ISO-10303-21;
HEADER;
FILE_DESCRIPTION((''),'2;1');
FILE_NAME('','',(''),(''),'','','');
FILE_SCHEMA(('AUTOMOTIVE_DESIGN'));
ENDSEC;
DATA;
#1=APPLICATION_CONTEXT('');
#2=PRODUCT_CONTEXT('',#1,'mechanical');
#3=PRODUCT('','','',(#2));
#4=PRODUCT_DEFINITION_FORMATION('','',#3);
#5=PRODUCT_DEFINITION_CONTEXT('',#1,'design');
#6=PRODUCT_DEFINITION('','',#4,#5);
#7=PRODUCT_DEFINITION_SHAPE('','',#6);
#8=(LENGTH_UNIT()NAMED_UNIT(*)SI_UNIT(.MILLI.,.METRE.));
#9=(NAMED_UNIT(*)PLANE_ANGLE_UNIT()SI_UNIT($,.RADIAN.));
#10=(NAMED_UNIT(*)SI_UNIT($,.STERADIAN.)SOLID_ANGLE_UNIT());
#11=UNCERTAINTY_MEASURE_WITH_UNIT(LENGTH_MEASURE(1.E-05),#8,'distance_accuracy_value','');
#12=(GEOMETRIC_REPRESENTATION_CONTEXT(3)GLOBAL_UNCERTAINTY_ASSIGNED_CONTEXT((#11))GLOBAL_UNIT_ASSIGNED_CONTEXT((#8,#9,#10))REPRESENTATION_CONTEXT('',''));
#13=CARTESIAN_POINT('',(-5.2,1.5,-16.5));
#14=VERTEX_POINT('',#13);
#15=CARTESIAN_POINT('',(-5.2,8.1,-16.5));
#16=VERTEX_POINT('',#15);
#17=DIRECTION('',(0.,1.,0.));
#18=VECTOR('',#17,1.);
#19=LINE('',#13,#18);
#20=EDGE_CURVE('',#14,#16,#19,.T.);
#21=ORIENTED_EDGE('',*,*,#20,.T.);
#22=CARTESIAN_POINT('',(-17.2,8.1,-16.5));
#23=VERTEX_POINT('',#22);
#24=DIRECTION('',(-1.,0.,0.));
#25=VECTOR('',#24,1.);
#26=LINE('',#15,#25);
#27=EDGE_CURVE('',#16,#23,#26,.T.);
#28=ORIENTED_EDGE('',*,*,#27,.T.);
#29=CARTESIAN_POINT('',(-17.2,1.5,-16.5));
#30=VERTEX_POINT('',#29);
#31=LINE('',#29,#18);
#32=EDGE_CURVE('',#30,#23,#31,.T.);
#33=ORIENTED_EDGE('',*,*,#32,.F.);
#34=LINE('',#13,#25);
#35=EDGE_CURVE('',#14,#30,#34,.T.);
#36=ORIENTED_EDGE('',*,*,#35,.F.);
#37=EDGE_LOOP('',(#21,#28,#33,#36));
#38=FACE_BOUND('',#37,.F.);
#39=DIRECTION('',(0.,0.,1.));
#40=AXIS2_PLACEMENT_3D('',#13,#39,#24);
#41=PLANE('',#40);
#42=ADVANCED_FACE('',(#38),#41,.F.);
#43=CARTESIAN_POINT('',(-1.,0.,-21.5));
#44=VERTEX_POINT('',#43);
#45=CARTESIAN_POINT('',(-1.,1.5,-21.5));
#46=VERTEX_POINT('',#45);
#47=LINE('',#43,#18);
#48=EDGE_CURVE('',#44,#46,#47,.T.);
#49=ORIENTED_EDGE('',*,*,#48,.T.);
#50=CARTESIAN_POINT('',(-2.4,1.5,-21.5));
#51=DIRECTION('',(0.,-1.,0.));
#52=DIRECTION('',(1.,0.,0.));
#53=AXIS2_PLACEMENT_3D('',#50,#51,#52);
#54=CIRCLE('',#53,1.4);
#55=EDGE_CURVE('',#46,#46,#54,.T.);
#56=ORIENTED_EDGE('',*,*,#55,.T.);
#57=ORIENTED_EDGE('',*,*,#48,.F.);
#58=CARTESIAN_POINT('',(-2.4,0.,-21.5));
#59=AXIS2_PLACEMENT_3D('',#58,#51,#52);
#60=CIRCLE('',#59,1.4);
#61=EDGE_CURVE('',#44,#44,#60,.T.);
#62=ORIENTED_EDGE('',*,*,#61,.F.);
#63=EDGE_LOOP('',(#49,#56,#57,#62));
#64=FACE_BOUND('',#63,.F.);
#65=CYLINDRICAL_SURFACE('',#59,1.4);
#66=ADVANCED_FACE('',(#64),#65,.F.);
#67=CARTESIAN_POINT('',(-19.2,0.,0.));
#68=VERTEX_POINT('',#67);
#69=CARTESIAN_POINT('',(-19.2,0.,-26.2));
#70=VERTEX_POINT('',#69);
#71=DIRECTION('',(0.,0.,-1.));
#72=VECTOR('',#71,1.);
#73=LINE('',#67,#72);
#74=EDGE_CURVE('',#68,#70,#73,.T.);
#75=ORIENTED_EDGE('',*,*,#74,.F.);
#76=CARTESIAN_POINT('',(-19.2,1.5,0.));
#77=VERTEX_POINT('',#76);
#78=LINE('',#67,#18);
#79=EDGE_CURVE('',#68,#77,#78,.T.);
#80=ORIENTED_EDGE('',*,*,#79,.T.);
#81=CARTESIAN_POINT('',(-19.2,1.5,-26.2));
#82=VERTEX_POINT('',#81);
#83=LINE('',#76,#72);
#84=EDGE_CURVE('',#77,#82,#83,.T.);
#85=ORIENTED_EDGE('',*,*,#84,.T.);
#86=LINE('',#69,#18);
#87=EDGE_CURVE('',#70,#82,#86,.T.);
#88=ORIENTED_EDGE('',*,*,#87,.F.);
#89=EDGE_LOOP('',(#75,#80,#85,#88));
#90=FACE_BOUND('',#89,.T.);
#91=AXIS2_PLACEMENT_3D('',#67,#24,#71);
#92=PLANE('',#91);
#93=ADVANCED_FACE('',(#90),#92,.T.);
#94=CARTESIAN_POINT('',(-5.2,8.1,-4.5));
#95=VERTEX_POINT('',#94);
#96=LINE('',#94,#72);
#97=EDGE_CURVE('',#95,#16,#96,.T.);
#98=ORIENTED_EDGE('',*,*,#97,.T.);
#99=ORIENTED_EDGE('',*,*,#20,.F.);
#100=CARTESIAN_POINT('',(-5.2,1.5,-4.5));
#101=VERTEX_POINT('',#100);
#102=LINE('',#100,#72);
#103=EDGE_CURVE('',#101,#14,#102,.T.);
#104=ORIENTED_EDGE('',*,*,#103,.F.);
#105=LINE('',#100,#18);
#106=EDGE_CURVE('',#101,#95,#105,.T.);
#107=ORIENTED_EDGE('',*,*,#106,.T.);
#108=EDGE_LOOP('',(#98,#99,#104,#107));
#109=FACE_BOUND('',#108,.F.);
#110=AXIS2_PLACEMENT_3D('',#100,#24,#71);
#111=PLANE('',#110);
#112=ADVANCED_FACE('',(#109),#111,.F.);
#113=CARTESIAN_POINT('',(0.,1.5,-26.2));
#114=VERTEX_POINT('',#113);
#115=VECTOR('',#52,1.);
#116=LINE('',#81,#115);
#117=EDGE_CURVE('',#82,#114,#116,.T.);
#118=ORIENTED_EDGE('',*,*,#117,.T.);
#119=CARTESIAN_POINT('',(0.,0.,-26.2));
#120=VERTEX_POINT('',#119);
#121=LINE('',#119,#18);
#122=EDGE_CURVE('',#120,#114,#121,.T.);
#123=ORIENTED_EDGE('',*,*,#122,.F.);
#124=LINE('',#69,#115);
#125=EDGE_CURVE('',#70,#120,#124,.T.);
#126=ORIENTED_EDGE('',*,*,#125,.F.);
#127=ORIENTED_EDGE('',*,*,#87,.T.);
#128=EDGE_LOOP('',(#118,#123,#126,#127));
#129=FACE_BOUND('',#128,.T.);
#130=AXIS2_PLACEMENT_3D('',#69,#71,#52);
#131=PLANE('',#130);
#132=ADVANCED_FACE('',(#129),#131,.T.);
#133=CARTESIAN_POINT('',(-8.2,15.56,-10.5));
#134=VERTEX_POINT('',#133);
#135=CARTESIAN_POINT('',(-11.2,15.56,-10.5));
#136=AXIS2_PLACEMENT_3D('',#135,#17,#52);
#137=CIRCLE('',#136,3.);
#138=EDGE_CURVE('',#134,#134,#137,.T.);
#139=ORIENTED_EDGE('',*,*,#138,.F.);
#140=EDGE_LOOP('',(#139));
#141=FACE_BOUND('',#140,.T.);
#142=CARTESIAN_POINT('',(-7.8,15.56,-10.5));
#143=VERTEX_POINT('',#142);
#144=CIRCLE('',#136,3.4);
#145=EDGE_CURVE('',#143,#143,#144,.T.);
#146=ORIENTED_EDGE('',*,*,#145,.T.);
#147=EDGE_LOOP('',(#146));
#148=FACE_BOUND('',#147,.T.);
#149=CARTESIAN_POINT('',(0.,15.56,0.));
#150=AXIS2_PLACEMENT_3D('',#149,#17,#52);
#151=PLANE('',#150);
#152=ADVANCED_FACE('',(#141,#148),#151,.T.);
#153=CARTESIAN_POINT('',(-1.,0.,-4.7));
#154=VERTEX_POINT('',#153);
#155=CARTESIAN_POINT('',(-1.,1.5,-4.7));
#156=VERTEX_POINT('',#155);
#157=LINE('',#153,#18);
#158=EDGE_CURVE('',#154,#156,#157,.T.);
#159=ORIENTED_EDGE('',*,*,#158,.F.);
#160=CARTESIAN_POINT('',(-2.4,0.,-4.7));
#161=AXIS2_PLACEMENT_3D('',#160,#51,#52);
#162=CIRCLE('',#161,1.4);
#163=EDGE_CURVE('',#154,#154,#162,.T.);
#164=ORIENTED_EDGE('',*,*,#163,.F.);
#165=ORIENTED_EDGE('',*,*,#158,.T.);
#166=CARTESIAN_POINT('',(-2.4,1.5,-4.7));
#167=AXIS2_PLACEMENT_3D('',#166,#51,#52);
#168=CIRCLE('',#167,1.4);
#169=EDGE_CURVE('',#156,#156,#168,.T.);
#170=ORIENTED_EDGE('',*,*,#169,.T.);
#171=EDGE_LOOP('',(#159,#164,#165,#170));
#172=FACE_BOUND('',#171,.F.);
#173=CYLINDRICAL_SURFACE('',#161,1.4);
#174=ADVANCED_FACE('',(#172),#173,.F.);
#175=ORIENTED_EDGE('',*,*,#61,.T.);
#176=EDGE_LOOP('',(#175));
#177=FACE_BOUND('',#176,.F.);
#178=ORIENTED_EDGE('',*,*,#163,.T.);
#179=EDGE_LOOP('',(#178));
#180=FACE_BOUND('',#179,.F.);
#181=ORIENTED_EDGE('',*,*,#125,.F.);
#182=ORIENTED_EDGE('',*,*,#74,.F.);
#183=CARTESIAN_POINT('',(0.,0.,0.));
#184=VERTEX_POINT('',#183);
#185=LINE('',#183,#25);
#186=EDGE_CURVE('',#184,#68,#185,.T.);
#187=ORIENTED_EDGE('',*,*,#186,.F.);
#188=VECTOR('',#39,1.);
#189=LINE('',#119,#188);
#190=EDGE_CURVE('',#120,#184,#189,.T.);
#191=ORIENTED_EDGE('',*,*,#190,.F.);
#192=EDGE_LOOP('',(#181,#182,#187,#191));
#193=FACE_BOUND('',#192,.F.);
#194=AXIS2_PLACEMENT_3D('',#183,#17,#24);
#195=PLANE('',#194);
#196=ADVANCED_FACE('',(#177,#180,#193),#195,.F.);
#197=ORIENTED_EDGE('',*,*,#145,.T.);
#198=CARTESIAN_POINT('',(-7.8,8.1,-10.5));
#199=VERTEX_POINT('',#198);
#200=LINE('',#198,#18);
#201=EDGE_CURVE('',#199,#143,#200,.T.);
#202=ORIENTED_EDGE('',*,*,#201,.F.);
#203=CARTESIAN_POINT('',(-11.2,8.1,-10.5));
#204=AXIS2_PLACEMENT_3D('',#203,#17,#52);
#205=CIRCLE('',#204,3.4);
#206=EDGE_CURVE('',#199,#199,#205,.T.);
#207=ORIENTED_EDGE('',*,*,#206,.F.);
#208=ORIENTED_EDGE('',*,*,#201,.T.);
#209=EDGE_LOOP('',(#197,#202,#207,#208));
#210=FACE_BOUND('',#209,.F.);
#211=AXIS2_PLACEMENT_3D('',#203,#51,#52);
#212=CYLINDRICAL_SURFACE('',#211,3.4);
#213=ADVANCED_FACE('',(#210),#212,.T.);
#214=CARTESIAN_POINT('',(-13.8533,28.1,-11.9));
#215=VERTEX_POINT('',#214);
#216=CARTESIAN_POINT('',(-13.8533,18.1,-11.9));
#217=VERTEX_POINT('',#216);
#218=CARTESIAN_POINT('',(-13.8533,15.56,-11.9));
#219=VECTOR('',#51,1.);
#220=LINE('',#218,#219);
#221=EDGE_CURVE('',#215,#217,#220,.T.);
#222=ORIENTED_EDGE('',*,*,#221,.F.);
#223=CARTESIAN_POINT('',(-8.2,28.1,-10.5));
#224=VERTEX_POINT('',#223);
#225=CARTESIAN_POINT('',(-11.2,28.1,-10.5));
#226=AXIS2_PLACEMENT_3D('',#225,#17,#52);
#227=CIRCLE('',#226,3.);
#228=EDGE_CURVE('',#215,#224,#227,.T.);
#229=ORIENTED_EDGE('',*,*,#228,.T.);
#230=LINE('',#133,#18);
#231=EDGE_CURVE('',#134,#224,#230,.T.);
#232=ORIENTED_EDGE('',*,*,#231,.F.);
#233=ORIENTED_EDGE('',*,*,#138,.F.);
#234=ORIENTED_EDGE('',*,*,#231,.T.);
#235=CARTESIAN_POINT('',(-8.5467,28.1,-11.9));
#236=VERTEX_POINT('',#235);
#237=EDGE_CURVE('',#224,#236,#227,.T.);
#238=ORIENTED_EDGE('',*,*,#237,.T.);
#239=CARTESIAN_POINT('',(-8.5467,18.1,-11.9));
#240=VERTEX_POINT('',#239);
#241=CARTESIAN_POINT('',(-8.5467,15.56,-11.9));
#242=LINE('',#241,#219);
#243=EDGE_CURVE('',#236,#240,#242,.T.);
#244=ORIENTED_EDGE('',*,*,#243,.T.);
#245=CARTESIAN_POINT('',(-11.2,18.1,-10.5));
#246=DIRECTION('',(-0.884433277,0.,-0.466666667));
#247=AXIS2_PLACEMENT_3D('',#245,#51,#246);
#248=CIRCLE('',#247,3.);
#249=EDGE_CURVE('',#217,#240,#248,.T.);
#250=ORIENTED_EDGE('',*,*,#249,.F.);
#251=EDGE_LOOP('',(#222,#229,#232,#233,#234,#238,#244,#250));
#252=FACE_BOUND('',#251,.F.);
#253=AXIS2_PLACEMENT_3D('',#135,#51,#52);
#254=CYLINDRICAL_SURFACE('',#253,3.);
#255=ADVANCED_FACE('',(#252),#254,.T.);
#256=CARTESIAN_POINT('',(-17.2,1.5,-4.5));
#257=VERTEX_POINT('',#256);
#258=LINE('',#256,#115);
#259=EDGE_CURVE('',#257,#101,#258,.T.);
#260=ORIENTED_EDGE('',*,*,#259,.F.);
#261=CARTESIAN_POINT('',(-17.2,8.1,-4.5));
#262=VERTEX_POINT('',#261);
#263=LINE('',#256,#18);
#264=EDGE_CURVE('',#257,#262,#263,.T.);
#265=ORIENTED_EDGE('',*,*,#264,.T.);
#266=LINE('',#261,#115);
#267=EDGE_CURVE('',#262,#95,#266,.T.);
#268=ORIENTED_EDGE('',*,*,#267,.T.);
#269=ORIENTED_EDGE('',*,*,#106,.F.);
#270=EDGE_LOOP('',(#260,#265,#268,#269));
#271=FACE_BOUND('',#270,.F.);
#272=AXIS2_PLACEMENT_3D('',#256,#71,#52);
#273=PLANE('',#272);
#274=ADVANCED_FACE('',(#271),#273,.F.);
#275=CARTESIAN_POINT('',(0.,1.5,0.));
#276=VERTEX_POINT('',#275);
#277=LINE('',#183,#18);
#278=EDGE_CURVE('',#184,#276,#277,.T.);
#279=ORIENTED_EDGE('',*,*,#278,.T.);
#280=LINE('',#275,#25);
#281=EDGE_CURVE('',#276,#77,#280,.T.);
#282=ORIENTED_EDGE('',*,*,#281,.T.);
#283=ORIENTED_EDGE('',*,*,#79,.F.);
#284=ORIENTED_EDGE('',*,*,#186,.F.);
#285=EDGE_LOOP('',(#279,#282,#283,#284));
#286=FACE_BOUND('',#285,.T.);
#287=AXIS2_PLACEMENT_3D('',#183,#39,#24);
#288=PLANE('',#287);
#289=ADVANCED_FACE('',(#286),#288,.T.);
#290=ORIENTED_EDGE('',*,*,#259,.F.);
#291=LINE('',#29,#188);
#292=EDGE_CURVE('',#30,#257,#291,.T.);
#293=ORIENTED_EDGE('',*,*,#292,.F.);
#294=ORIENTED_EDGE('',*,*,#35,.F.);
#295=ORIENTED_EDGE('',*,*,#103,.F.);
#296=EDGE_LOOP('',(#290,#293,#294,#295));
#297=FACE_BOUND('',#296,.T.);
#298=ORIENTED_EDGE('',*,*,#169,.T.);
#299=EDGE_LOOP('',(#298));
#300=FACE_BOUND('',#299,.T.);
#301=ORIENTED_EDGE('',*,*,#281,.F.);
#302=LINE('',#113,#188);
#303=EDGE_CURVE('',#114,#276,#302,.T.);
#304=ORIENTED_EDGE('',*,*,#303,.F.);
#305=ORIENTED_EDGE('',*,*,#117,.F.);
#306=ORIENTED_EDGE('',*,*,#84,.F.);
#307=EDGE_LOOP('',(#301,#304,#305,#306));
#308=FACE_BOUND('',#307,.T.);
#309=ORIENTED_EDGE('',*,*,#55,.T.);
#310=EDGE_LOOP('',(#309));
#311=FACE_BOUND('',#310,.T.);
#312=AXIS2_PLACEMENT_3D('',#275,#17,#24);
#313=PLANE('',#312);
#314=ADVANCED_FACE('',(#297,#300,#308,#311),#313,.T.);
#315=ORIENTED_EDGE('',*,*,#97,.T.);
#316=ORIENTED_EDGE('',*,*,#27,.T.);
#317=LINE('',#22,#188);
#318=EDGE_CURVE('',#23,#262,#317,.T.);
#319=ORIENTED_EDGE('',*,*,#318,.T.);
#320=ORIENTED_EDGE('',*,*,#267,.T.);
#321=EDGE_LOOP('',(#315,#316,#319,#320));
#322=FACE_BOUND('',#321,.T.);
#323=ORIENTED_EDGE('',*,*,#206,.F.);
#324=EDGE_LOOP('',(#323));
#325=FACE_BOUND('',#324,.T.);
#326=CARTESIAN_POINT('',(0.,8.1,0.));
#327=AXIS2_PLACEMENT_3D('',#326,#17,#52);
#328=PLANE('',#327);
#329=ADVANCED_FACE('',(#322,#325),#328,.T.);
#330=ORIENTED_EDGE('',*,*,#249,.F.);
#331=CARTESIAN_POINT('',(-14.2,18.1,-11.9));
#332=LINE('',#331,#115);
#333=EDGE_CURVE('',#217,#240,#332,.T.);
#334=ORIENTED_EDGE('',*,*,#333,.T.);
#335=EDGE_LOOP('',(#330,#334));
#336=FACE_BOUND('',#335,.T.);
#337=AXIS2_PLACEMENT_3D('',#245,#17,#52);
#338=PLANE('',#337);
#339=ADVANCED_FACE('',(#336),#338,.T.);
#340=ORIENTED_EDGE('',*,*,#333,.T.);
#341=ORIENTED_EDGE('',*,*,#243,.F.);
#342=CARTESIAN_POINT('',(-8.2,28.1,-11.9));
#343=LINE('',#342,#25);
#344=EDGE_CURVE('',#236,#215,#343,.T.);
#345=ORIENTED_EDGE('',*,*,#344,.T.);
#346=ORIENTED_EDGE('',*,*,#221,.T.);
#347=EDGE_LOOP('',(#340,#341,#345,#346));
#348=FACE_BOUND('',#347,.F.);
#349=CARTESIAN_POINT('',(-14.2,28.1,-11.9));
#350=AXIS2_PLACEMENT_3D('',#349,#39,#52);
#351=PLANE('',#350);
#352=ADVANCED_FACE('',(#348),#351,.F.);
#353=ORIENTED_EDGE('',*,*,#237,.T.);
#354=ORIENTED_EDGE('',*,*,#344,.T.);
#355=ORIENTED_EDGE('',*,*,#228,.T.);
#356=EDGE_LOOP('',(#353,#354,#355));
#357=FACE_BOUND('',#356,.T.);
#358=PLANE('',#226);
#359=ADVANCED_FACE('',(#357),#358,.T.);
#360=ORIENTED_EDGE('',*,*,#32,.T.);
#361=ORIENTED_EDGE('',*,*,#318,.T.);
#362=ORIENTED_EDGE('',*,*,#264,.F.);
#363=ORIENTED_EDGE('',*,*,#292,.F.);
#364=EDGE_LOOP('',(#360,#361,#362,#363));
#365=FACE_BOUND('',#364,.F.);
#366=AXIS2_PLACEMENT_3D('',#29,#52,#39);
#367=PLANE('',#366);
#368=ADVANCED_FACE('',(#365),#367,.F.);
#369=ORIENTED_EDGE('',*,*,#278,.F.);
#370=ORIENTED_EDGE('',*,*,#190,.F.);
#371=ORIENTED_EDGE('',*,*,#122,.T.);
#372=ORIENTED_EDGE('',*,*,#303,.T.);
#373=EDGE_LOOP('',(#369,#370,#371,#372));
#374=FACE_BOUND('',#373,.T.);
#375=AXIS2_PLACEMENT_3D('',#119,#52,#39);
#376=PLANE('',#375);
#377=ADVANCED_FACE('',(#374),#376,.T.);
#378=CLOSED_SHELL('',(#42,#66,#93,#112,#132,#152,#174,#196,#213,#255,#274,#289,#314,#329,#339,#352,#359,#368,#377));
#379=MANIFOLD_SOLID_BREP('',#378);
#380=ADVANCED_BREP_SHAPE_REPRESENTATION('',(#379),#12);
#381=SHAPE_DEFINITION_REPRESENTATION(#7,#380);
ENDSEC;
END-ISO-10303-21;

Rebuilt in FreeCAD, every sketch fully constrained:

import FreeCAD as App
import Part
import Sketcher

V = App.Vector

doc = App.newDocument("Part")
body = doc.addObject("PartDesign::Body", "Body")

# Sketch on XZ plane
sketch1 = body.newObject("Sketcher::SketchObject", "Sketch")
sketch1.AttachmentSupport = (doc.getObject("XZ_Plane"), [""])
sketch1.MapMode = "FlatFace"
sketch1.addGeometry([
    Part.LineSegment(V(-19, 0, 0), V(0, 0, 0)),
    Part.LineSegment(V(0, 0, 0), V(0, -26, 0)),
    Part.LineSegment(V(0, -26, 0), V(-19, -26, 0)),
    Part.LineSegment(V(-19, -26, 0), V(-19, 0, 0)),
], False)
sketch1.addConstraint([
    Sketcher.Constraint("Coincident", 0, 2, 1, 1),
    Sketcher.Constraint("Coincident", 1, 2, 2, 1),
    Sketcher.Constraint("Coincident", 2, 2, 3, 1),
    Sketcher.Constraint("Coincident", 3, 2, 0, 1),
    Sketcher.Constraint("Horizontal", 0),
    Sketcher.Constraint("Vertical", 1),
    Sketcher.Constraint("Horizontal", 2),
    Sketcher.Constraint("Vertical", 3),
    Sketcher.Constraint("Coincident", 0, 2, -1, 1),
    Sketcher.Constraint("DistanceX", 0, 1, 0, 2, 19.2),
    Sketcher.Constraint("DistanceY", 1, 2, 1, 1, 26.2),
])
pad1 = body.newObject("PartDesign::Pad", "Pad")
pad1.Profile = sketch1
pad1.Length = 1.5
pad1.Reversed = True

# Sketch on XZ plane
sketch2 = body.newObject("Sketcher::SketchObject", "Sketch001")
sketch2.AttachmentSupport = (doc.getObject("XZ_Plane"), [""])
sketch2.MapMode = "FlatFace"
sketch2.AttachmentOffset = App.Placement(V(0, 0, -1.5), App.Rotation())
sketch2.addGeometry([
    Part.LineSegment(V(-17, -16, 0), V(-17, -4, 0)),
    Part.LineSegment(V(-17, -4, 0), V(-5, -4, 0)),
    Part.LineSegment(V(-5, -4, 0), V(-5, -16, 0)),
    Part.LineSegment(V(-5, -16, 0), V(-17, -16, 0)),
], False)
sketch2.addConstraint([
    Sketcher.Constraint("Coincident", 0, 2, 1, 1),
    Sketcher.Constraint("Coincident", 1, 2, 2, 1),
    Sketcher.Constraint("Coincident", 2, 2, 3, 1),
    Sketcher.Constraint("Coincident", 3, 2, 0, 1),
    Sketcher.Constraint("Vertical", 0),
    Sketcher.Constraint("Horizontal", 1),
    Sketcher.Constraint("Vertical", 2),
    Sketcher.Constraint("Horizontal", 3),
    Sketcher.Constraint("Equal", 3, 0),
    Sketcher.Constraint("DistanceX", 1, 1, 1, 2, 12.0),
    Sketcher.Constraint("DistanceY", 0, 2, -1, 1, 4.5),
    Sketcher.Constraint("DistanceX", 0, 2, -1, 1, 17.2),
])
pad2 = body.newObject("PartDesign::Pad", "Pad001")
pad2.Profile = sketch2
pad2.Length = 6.6
pad2.Reversed = True

# Sketch on XZ plane
sketch3 = body.newObject("Sketcher::SketchObject", "Sketch002")
sketch3.AttachmentSupport = (doc.getObject("XZ_Plane"), [""])
sketch3.MapMode = "FlatFace"
sketch3.AttachmentOffset = App.Placement(V(0, 0, -8.1), App.Rotation())
sketch3.addGeometry(Part.Circle(V(-11.2, -10.5, 0), V(0, 0, 1), 3.4), False)
sketch3.addConstraint([
    Sketcher.Constraint("Diameter", 0, 6.8),
    Sketcher.Constraint("DistanceX", 0, 3, -1, 1, 11.2),
    Sketcher.Constraint("DistanceY", 0, 3, -1, 1, 10.5),
])
pad3 = body.newObject("PartDesign::Pad", "Pad002")
pad3.Profile = sketch3
pad3.Length = 7.46
pad3.Reversed = True

# Sketch on XZ plane
sketch4 = body.newObject("Sketcher::SketchObject", "Sketch003")
sketch4.AttachmentSupport = (doc.getObject("XZ_Plane"), [""])
sketch4.MapMode = "FlatFace"
sketch4.AttachmentOffset = App.Placement(V(0, 0, -15.56), App.Rotation())
sketch4.addGeometry(Part.Circle(V(-11.2, -10.5, 0), V(0, 0, 1), 3), False)
sketch4.addConstraint([
    Sketcher.Constraint("Diameter", 0, 6.0),
    Sketcher.Constraint("DistanceX", 0, 3, -1, 1, 11.2),
    Sketcher.Constraint("DistanceY", 0, 3, -1, 1, 10.5),
])
pad4 = body.newObject("PartDesign::Pad", "Pad003")
pad4.Profile = sketch4
pad4.Length = 12.54
pad4.Reversed = True

# Sketch on XZ plane
sketch5 = body.newObject("Sketcher::SketchObject", "Sketch004")
sketch5.AttachmentSupport = (doc.getObject("XZ_Plane"), [""])
sketch5.MapMode = "FlatFace"
sketch5.AttachmentOffset = App.Placement(V(0, 0, -28.1), App.Rotation())
sketch5.addGeometry([
    Part.LineSegment(V(-14.2, -13.5, 0), V(-14.2, -11.9, 0)),
    Part.LineSegment(V(-14.2, -11.9, 0), V(-8.2, -11.9, 0)),
    Part.LineSegment(V(-8.2, -11.9, 0), V(-8.2, -13.5, 0)),
    Part.LineSegment(V(-8.2, -13.5, 0), V(-14.2, -13.5, 0)),
], False)
sketch5.addConstraint([
    Sketcher.Constraint("Coincident", 0, 2, 1, 1),
    Sketcher.Constraint("Coincident", 1, 2, 2, 1),
    Sketcher.Constraint("Coincident", 2, 2, 3, 1),
    Sketcher.Constraint("Coincident", 3, 2, 0, 1),
    Sketcher.Constraint("Vertical", 0),
    Sketcher.Constraint("Horizontal", 1),
    Sketcher.Constraint("Vertical", 2),
    Sketcher.Constraint("Horizontal", 3),
    Sketcher.Constraint("DistanceX", 1, 1, 1, 2, 6.0),
    Sketcher.Constraint("DistanceY", 0, 1, 0, 2, 1.6),
    Sketcher.Constraint("DistanceX", 0, 2, -1, 1, 14.2),
    Sketcher.Constraint("DistanceY", 0, 2, -1, 1, 11.9),
])
pocket1 = body.newObject("PartDesign::Pocket", "Pocket")
pocket1.Profile = sketch5
pocket1.Length = 10
pocket1.Reversed = True

# Sketch on XZ plane
sketch6 = body.newObject("Sketcher::SketchObject", "Sketch005")
sketch6.AttachmentSupport = (doc.getObject("XZ_Plane"), [""])
sketch6.MapMode = "FlatFace"
sketch6.addGeometry([
    Part.Circle(V(-2.4, -4.7, 0), V(0, 0, 1), 1.4),
    Part.Circle(V(-2.4, -21.5, 0), V(0, 0, 1), 1.4),
], False)
sketch6.addConstraint([
    Sketcher.Constraint("Equal", 0, 1),
    Sketcher.Constraint("Vertical", 0, 3, 1, 3),
    Sketcher.Constraint("Diameter", 0, 2.8),
    Sketcher.Constraint("DistanceX", 0, 3, -1, 1, 2.4),
    Sketcher.Constraint("DistanceY", 0, 3, -1, 1, 4.7),
    Sketcher.Constraint("DistanceY", 1, 3, 0, 3, 16.8),
])
pocket2 = body.newObject("PartDesign::Pocket", "Pocket001")
pocket2.Profile = sketch6
pocket2.Length = 1.5

doc.recompute()
